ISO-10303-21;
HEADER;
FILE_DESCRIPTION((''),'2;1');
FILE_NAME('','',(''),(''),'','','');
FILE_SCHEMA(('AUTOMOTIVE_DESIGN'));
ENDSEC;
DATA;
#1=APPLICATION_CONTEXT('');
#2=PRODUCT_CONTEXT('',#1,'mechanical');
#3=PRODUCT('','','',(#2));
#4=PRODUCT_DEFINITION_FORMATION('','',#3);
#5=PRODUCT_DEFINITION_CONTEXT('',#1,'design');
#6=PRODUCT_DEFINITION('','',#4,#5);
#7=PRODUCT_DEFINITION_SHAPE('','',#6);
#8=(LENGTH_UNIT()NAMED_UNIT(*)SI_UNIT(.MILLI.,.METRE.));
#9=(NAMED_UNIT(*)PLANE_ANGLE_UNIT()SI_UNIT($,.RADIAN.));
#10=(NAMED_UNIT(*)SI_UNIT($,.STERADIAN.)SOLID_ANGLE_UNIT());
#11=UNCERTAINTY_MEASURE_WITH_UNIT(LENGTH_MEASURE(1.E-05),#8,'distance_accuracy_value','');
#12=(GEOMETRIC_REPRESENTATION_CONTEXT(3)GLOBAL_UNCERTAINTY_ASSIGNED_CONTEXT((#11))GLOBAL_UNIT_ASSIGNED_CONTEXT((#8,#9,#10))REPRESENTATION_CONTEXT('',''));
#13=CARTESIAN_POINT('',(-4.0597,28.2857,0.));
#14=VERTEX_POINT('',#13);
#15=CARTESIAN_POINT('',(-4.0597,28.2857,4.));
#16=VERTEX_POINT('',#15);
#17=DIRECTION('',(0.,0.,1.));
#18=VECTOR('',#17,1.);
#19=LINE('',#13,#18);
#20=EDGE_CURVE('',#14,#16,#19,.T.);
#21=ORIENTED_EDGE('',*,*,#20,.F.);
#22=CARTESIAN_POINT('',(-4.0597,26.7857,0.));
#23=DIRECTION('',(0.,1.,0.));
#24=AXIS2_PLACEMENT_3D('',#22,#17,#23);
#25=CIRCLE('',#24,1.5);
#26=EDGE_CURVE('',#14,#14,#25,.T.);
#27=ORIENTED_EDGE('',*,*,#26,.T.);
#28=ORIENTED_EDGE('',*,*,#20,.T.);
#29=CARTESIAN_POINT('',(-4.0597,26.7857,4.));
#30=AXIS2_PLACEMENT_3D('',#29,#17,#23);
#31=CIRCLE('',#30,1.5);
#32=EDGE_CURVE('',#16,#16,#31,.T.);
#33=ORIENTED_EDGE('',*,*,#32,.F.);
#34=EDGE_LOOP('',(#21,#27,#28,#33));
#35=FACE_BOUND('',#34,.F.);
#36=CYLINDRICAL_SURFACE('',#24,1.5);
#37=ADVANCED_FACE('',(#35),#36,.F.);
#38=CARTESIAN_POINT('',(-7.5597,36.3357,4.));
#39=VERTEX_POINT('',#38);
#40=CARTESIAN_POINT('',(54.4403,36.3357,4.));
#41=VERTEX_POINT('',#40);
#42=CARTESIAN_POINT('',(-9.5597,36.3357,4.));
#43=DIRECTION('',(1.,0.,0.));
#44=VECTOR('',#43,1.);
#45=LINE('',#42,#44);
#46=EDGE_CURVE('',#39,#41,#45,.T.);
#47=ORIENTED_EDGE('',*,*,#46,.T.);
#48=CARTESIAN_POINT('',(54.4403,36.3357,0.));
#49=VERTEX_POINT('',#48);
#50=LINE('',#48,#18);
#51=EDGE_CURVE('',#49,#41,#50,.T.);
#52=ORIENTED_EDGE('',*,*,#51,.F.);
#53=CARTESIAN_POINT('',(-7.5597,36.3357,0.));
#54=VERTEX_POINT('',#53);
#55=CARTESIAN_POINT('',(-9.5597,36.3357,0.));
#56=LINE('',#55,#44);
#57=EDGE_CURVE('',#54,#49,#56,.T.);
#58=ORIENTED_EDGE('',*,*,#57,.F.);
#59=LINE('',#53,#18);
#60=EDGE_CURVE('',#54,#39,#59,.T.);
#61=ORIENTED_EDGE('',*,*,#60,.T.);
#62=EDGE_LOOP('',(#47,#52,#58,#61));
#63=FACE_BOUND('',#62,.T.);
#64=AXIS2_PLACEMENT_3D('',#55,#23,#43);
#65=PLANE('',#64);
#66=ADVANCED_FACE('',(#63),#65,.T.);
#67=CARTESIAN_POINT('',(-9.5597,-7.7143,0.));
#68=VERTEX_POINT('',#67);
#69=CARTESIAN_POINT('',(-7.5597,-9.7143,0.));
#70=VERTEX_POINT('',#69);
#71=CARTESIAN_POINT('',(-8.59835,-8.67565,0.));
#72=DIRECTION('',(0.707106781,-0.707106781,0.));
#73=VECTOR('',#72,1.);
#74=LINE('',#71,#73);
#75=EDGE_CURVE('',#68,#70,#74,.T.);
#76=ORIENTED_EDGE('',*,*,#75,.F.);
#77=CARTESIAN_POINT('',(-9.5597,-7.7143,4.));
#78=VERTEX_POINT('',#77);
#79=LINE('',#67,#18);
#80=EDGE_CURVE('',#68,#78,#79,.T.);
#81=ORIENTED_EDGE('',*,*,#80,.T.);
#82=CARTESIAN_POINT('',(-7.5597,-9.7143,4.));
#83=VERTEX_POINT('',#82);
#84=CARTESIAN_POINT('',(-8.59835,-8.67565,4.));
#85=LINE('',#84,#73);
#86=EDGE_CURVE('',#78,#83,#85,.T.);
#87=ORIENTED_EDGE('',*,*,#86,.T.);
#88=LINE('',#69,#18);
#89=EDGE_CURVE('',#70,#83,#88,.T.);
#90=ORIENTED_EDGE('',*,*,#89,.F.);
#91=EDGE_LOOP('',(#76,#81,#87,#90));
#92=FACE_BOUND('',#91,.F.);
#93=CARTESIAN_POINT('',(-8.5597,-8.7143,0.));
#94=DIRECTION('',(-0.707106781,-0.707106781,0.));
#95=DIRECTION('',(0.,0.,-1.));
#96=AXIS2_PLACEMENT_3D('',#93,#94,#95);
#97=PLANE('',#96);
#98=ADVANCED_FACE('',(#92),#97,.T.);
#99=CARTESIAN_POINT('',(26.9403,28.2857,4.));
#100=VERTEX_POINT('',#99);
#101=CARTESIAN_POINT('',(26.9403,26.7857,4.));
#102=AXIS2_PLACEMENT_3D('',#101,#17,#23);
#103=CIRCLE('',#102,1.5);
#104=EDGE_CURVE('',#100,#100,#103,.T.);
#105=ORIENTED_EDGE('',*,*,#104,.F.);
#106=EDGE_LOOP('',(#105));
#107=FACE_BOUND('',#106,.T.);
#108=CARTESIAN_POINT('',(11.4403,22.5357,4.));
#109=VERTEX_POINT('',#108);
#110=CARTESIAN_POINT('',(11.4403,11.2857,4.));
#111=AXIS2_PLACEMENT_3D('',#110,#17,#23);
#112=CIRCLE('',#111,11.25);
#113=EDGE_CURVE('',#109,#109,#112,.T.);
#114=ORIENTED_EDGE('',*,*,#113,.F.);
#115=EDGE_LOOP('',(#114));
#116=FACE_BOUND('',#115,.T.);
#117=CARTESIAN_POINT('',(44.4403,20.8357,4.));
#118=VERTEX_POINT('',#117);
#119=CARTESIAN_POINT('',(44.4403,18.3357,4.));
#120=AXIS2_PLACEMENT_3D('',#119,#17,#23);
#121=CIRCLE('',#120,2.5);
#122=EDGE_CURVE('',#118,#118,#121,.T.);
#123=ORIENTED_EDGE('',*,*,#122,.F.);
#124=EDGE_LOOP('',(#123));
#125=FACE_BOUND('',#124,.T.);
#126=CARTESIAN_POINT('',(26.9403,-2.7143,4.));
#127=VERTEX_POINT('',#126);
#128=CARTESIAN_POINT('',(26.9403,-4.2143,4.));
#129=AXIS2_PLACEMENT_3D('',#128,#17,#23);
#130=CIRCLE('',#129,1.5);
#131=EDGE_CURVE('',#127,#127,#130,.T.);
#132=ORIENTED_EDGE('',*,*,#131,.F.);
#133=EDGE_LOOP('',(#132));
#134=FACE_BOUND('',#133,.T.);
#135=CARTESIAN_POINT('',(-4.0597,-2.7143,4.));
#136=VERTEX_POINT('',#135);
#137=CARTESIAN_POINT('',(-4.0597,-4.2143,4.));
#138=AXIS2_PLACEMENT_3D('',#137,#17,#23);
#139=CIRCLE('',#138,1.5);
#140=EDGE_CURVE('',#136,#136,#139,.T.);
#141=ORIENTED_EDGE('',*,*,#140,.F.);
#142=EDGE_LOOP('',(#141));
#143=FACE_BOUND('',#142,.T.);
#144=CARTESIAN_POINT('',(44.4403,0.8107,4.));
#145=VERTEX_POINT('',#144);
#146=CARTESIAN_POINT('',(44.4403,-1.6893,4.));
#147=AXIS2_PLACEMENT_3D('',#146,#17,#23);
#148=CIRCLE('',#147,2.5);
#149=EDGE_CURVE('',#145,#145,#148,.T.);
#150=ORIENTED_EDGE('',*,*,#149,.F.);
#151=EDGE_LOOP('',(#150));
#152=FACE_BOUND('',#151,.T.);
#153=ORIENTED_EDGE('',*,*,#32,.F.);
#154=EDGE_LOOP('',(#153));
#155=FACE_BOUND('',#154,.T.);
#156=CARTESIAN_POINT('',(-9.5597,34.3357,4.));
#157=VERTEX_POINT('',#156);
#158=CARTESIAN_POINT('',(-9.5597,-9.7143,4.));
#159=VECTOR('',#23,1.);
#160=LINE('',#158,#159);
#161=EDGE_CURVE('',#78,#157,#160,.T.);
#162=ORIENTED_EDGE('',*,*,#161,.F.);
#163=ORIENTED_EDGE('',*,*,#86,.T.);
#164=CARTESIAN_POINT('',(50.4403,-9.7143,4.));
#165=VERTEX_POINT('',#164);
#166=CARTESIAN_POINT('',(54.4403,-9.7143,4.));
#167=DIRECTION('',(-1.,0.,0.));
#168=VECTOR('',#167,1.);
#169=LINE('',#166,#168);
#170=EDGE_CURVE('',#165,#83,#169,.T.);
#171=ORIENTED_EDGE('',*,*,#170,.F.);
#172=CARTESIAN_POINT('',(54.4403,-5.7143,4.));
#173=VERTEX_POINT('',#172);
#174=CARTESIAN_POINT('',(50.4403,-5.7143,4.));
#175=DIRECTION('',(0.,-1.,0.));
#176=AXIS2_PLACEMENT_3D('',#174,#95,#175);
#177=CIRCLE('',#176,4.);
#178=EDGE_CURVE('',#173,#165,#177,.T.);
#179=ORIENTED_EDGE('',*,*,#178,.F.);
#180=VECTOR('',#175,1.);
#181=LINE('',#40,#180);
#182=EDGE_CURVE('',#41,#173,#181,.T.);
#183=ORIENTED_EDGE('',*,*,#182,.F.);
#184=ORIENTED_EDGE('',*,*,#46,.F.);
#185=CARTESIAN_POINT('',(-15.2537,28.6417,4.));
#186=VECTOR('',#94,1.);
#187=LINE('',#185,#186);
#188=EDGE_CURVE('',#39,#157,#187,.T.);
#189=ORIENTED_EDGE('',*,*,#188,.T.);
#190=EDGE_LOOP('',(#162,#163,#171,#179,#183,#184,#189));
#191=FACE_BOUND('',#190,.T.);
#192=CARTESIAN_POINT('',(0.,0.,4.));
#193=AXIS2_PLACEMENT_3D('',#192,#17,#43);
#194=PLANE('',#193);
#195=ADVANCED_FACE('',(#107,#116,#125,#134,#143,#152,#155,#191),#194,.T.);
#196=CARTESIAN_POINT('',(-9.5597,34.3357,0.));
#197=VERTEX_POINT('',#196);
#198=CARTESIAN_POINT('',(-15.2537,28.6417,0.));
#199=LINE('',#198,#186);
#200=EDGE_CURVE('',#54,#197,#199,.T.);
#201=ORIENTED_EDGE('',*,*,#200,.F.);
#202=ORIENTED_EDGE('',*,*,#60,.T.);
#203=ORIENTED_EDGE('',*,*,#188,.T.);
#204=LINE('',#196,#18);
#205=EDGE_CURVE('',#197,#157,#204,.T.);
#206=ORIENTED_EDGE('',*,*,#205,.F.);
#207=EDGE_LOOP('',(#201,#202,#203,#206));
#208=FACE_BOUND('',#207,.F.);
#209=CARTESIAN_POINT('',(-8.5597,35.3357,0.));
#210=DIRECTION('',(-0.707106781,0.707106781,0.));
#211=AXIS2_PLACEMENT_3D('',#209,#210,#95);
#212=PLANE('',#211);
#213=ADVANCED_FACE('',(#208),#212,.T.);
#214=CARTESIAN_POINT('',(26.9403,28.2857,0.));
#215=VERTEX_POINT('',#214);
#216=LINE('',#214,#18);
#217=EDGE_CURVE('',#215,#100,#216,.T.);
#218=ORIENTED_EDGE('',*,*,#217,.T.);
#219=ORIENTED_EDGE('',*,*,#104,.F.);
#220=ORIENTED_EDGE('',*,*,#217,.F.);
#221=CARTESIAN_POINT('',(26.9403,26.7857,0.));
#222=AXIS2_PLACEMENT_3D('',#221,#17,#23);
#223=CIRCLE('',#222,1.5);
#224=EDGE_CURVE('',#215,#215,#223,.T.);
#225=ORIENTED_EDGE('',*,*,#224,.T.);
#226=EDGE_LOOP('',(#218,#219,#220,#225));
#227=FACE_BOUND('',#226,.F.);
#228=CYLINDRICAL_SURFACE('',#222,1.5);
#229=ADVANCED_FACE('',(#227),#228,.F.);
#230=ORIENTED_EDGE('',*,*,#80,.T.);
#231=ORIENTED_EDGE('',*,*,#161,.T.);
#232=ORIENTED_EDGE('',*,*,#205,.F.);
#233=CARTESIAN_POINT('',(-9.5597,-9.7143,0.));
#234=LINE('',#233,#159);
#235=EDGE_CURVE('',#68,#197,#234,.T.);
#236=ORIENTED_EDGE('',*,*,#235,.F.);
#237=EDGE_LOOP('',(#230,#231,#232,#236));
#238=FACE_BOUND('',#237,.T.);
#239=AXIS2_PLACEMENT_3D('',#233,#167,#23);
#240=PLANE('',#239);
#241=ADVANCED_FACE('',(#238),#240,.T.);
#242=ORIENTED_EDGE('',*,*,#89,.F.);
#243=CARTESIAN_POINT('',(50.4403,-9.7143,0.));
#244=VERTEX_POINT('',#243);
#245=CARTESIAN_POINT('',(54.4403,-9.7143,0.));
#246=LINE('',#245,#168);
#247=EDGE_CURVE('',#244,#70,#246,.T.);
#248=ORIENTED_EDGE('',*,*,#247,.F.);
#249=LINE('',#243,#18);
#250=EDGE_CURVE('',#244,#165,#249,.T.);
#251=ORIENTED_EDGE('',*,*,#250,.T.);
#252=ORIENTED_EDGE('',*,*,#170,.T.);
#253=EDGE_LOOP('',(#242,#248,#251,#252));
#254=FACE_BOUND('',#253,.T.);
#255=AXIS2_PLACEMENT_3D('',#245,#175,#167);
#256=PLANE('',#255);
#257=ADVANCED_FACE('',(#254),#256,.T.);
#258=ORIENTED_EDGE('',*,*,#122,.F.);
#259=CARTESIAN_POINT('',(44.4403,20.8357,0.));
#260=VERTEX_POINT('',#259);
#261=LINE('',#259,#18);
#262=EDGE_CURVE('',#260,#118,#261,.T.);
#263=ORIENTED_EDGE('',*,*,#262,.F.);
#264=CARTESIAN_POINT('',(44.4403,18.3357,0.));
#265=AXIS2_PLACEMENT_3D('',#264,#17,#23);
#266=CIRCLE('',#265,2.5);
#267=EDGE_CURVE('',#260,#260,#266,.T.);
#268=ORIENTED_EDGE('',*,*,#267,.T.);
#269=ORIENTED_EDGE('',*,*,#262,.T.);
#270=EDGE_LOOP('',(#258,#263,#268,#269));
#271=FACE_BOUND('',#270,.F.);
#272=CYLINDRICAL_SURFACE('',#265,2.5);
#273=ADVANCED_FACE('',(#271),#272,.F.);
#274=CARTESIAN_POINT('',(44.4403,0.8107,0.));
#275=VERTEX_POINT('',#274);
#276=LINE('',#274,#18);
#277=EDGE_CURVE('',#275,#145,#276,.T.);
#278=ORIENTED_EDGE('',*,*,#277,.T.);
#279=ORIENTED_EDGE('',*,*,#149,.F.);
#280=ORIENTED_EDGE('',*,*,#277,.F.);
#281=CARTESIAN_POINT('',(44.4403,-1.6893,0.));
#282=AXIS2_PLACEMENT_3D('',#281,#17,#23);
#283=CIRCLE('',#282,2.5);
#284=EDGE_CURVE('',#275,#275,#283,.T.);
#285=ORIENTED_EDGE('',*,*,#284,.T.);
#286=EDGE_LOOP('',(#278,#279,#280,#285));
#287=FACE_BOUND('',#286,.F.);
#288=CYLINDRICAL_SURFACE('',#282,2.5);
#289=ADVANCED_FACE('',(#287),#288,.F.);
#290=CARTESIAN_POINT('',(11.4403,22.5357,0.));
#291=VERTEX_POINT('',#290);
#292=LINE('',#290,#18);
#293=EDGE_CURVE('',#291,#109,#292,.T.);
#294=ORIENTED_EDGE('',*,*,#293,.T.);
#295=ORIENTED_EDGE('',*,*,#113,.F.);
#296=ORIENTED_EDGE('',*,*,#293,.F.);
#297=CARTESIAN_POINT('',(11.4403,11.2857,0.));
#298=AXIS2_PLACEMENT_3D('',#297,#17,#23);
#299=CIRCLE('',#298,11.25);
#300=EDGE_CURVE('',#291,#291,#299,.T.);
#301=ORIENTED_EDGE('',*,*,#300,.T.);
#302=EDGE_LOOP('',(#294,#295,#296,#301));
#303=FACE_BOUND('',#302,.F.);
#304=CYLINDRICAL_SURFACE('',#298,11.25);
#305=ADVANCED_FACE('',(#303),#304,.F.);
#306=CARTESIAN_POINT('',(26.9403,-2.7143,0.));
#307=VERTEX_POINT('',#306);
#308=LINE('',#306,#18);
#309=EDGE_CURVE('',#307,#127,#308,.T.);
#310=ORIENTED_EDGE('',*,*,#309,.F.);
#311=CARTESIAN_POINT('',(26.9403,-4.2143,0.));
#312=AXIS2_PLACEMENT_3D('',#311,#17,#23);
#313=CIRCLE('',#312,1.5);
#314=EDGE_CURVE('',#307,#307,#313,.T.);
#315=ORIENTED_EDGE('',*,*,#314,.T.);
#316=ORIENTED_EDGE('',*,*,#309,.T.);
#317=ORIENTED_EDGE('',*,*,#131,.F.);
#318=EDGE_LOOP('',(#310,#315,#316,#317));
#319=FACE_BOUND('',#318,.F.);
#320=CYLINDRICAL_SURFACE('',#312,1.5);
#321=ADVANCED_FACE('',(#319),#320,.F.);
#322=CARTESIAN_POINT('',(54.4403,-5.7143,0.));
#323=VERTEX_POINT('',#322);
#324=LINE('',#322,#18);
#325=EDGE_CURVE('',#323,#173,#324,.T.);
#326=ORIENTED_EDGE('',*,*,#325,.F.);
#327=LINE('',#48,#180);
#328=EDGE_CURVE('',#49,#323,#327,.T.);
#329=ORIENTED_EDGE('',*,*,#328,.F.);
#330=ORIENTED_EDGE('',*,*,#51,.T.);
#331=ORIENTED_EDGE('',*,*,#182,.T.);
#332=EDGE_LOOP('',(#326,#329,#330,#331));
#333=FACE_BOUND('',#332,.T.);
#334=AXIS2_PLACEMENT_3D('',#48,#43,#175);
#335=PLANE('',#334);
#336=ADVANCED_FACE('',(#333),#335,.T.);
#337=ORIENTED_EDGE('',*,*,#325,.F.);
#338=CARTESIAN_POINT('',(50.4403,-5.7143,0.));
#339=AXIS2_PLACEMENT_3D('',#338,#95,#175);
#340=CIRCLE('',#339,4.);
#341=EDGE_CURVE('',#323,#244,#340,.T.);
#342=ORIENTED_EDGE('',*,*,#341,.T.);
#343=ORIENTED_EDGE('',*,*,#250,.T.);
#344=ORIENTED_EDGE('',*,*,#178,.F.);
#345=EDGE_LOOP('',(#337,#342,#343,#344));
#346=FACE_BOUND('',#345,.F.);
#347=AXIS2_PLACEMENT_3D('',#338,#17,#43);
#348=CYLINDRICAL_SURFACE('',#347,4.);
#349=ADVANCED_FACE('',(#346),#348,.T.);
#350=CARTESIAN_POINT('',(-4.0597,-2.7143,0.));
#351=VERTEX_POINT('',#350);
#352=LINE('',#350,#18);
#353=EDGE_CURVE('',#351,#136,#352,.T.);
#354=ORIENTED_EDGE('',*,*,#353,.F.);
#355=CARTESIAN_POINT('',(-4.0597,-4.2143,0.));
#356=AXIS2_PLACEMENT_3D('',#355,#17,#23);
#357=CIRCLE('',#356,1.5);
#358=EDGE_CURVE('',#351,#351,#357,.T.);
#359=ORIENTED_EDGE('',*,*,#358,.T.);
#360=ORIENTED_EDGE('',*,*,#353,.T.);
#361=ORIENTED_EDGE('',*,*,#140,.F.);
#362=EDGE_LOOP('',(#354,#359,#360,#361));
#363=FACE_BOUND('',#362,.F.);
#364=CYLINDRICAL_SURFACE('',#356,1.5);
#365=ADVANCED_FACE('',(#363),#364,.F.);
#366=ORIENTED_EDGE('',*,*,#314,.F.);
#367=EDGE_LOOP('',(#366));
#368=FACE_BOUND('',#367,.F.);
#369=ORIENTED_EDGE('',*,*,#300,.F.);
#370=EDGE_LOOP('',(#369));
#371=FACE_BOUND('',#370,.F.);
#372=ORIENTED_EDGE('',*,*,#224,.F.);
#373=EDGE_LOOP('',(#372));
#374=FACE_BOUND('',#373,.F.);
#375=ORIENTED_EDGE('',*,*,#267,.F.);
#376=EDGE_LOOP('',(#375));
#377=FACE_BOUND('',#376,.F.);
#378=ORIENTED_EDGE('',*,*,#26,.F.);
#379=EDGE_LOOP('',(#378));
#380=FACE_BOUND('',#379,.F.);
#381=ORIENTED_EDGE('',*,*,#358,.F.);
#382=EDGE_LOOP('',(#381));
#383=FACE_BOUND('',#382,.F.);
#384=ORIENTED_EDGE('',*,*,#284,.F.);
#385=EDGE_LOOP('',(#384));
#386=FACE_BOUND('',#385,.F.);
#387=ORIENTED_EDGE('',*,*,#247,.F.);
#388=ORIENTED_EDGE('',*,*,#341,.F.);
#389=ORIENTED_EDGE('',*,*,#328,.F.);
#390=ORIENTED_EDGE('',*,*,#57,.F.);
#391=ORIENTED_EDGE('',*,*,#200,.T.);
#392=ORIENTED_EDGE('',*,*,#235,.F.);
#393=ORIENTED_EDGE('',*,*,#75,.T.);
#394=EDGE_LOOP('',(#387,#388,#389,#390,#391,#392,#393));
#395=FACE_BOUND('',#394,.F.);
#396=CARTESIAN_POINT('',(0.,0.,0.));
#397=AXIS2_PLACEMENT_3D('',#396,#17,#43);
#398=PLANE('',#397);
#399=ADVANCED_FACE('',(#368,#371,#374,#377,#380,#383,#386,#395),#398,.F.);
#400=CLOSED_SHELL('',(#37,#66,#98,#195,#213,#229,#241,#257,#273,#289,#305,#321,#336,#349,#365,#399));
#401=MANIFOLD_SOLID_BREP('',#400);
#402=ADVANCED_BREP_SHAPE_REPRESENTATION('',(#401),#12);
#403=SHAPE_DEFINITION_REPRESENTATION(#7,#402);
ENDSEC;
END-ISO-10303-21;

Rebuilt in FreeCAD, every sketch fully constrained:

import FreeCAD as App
import Part
import Sketcher
from FreeCAD import Vector
Q = App.Units.Quantity


def edges_at(feature, points):
    """Names of the edges that pass closest to the given points."""
    edges = feature.Shape.Edges
    near = lambda p: min(range(len(edges)), key=lambda i: edges[i].distToShape(Part.Vertex(*p))[0])
    return sorted({f"Edge{near(p) + 1}" for p in points})


def add_polygon(sketch, points):
    """Adds a closed chain of lines whose ends are joined by coincident constraints."""
    first, n = sketch.GeometryCount, len(points)
    for a, b in zip(points, points[1:] + points[:1]):
        sketch.addGeometry(Part.LineSegment(App.Vector(*a, 0), App.Vector(*b, 0)), False)
    for i in range(n):
        sketch.addConstraint(Sketcher.Constraint("Coincident", first + i, 2, first + (i + 1) % n, 1))

doc = App.newDocument("Part")
body = doc.addObject("PartDesign::Body", "Body")

# Sketch on XY plane
sketch1 = doc.addObject("Sketcher::SketchObject", "Sketch")
body.addObject(sketch1)
sketch1.AttachmentSupport = (doc.XY_Plane, [""])
sketch1.MapMode = "FlatFace"
add_polygon(sketch1, [(54, 36), (-10, 36), (-10, -10), (54, -10)])  # lines 0-3
sketch1.addConstraint([
    Sketcher.Constraint("Horizontal", 0),
    Sketcher.Constraint("Vertical", 1),
    Sketcher.Constraint("Horizontal", 2),
    Sketcher.Constraint("Vertical", 3),
    Sketcher.Constraint("DistanceX", 0, 2, 0, 1, Q("64 mm")),
    Sketcher.Constraint("DistanceY", 1, 2, 1, 1, Q("46.05 mm")),
    Sketcher.Constraint("DistanceX", 0, 2, -1, 1, Q("9.5597 mm")),
    Sketcher.Constraint("DistanceY", -1, 1, 0, 2, Q("36.3357 mm")),
])
pad1 = doc.addObject("PartDesign::Pad", "Pad")
body.addObject(pad1)
pad1.Profile = sketch1
pad1.Length = 4

# Sketch on XY plane
sketch2 = doc.addObject("Sketcher::SketchObject", "Sketch001")
body.addObject(sketch2)
sketch2.AttachmentSupport = (doc.XY_Plane, [""])
sketch2.MapMode = "FlatFace"
sketch2.addGeometry(Part.Circle(Vector(11, 11, 0), Vector(0, 0, 1), 11), False)
sketch2.addConstraint([
    Sketcher.Constraint("Diameter", 0, Q("22.5 mm")),
    Sketcher.Constraint("DistanceX", -1, 1, 0, 3, Q("11.4403 mm")),
    Sketcher.Constraint("DistanceY", -1, 1, 0, 3, Q("11.2857 mm")),
])
doc.recompute()
hole = doc.addObject("PartDesign::Hole", "Hole")
body.addObject(hole)
hole.Profile = sketch2
hole.ThreadType = "None"
hole.Diameter = 22.5
hole.DepthType = "ThroughAll"
hole.Reversed = True

# Sketch on XY plane
sketch3 = doc.addObject("Sketcher::SketchObject", "Sketch002")
body.addObject(sketch3)
sketch3.AttachmentSupport = (doc.XY_Plane, [""])
sketch3.MapMode = "FlatFace"
sketch3.addGeometry([
    Part.Circle(Vector(26.9, -4.2, 0), Vector(0, 0, 1), 1.5),
    Part.Circle(Vector(-4.1, -4.2, 0), Vector(0, 0, 1), 1.5),
    Part.Circle(Vector(26.9, 26.8, 0), Vector(0, 0, 1), 1.5),
    Part.Circle(Vector(-4.1, 26.8, 0), Vector(0, 0, 1), 1.5),
], False)
sketch3.addConstraint([
    Sketcher.Constraint("Equal", 0, 1),
    Sketcher.Constraint("Equal", 1, 2),
    Sketcher.Constraint("Equal", 2, 3),
    Sketcher.Constraint("Horizontal", 0, 3, 1, 3),
    Sketcher.Constraint("Horizontal", 2, 3, 3, 3),
    Sketcher.Constraint("Vertical", 0, 3, 2, 3),
    Sketcher.Constraint("Vertical", 1, 3, 3, 3),
    Sketcher.Constraint("Diameter", 0, Q("3 mm")),
    Sketcher.Constraint("DistanceX", 1, 3, 0, 3, Q("31 mm")),
    Sketcher.Constraint("DistanceY", 0, 3, 2, 3, Q("31 mm")),
    Sketcher.Constraint("DistanceX", -1, 1, 0, 3, Q("26.9403 mm")),
    Sketcher.Constraint("DistanceY", 0, 3, -1, 1, Q("4.2143 mm")),
])
doc.recompute()
hole2 = doc.addObject("PartDesign::Hole", "Hole001")
body.addObject(hole2)
hole2.Profile = sketch3
hole2.ThreadType = "None"
hole2.Diameter = 3
hole2.DepthType = "ThroughAll"
hole2.Reversed = True
doc.recompute()

chamfer = doc.addObject("PartDesign::Chamfer", "Chamfer")
body.addObject(chamfer)
chamfer.Base = (hole2, edges_at(hole2, [(-9.56, 36.336, 2), (-9.56, -9.714, 2)]))
chamfer.Size = 2
doc.recompute()

fillet = doc.addObject("PartDesign::Fillet", "Fillet")
body.addObject(fillet)
fillet.Base = (chamfer, edges_at(chamfer, [(54.44, -9.714, 2)]))
fillet.Radius = 4

# Sketch on XY plane
sketch4 = doc.addObject("Sketcher::SketchObject", "Sketch003")
body.addObject(sketch4)
sketch4.AttachmentSupport = (doc.XY_Plane, [""])
sketch4.MapMode = "FlatFace"
sketch4.addGeometry([
    Part.Circle(Vector(44.4, 18.3, 0), Vector(0, 0, 1), 2.5),
    Part.Circle(Vector(44.4, -1.7, 0), Vector(0, 0, 1), 2.5),
], False)
sketch4.addConstraint([
    Sketcher.Constraint("Equal", 0, 1),
    Sketcher.Constraint("Vertical", 0, 3, 1, 3),
    Sketcher.Constraint("Diameter", 0, Q("5 mm")),
    Sketcher.Constraint("DistanceY", 1, 3, 0, 3, Q("20.025 mm")),
    Sketcher.Constraint("DistanceX", -1, 1, 0, 3, Q("44.4403 mm")),
    Sketcher.Constraint("DistanceY", -1, 1, 0, 3, Q("18.3357 mm")),
])
doc.recompute()
hole3 = doc.addObject("PartDesign::Hole", "Hole002")
body.addObject(hole3)
hole3.Profile = sketch4
hole3.ThreadType = "None"
hole3.Diameter = 5
hole3.DepthType = "ThroughAll"
hole3.Reversed = True

doc.recompute()
